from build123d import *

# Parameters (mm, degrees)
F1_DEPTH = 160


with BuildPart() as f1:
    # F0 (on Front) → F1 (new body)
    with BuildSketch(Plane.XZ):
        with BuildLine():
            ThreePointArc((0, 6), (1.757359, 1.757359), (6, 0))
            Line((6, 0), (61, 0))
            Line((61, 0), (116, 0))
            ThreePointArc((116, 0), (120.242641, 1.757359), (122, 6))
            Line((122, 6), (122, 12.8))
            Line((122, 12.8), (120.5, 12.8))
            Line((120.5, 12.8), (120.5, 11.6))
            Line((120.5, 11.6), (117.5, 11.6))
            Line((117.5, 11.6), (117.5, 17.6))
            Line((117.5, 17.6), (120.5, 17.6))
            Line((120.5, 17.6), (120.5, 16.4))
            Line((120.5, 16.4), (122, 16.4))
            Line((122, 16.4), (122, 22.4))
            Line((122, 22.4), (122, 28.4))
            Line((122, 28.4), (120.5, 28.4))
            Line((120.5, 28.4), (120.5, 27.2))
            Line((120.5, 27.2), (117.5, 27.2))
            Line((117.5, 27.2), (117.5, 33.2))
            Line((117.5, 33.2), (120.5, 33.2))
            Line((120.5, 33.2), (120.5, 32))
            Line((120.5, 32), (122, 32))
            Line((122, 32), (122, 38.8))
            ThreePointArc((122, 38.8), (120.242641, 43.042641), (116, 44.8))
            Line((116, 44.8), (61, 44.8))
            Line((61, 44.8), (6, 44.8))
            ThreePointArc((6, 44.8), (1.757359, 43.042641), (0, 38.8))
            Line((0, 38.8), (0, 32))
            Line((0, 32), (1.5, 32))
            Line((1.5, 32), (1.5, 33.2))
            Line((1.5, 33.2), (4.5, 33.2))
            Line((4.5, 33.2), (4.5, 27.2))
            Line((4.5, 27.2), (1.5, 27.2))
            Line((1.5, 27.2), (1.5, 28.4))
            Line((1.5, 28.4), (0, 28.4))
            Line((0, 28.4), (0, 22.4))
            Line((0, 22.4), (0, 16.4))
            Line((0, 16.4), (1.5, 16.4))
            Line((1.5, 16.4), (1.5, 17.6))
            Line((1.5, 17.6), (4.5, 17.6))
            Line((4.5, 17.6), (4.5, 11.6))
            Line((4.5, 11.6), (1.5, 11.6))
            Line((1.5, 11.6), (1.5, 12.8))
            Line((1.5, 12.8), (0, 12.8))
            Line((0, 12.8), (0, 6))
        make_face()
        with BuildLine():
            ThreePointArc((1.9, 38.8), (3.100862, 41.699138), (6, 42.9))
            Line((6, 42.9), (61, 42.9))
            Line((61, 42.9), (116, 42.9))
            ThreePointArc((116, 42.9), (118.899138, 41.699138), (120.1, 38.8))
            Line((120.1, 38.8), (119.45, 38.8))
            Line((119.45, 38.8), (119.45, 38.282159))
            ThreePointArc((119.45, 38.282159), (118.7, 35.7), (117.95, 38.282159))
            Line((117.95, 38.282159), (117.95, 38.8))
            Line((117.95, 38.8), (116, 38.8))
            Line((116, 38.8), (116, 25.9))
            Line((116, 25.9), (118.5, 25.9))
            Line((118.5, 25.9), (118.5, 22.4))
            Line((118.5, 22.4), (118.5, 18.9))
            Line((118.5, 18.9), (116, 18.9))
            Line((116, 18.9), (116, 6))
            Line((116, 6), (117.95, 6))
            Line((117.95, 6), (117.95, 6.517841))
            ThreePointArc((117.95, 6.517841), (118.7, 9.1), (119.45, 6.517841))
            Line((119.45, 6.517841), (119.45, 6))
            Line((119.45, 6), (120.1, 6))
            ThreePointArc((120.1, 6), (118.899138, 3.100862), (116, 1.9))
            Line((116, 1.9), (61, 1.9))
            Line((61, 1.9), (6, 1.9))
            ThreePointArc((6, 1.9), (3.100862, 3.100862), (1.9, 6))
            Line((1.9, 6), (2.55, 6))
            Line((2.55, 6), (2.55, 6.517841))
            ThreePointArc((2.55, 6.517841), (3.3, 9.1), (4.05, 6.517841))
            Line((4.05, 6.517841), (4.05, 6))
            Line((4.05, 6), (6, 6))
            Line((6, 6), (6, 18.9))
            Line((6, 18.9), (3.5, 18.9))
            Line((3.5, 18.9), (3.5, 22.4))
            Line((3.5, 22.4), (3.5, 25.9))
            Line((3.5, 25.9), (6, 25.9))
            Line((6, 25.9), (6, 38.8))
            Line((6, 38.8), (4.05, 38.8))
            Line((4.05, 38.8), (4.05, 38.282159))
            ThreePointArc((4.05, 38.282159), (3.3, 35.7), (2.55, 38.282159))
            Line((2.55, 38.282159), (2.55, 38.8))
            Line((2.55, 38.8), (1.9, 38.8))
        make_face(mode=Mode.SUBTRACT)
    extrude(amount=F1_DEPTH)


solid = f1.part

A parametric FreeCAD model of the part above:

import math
import FreeCAD as App
import Part
import Sketcher

V = App.Vector

doc = App.newDocument("Part")
body = doc.addObject("PartDesign::Body", "Body")

sketch1 = doc.addObject("Sketcher::SketchObject", "Sketch")
body.addObject(sketch1)
sketch1.AttachmentSupport = (doc.XZ_Plane, [""])
sketch1.MapMode = "FlatFace"
sketch1.addGeometry(Part.ArcOfCircle(Part.Circle(V(6, 6, 0), V(0, 0, 1), 6), math.radians(180), math.radians(270)), False)
sketch1.addGeometry(Part.LineSegment(V(6, 0, 0), V(116, 0, 0)), False)
sketch1.addGeometry(Part.ArcOfCircle(Part.Circle(V(116, 6, 0), V(0, 0, 1), 6), math.radians(-90), math.radians(0)), False)
sketch1.addGeometry(Part.LineSegment(V(122, 6, 0), V(122, 12.8, 0)), False)
sketch1.addGeometry(Part.LineSegment(V(122, 12.8, 0), V(120.5, 12.8, 0)), False)
sketch1.addGeometry(Part.LineSegment(V(120.5, 12.8, 0), V(120.5, 11.6, 0)), False)
sketch1.addGeometry(Part.LineSegment(V(120.5, 11.6, 0), V(117.5, 11.6, 0)), False)
sketch1.addGeometry(Part.LineSegment(V(117.5, 11.6, 0), V(117.5, 17.6, 0)), False)
sketch1.addGeometry(Part.LineSegment(V(117.5, 17.6, 0), V(120.5, 17.6, 0)), False)
sketch1.addGeometry(Part.LineSegment(V(120.5, 17.6, 0), V(120.5, 16.4, 0)), False)
sketch1.addGeometry(Part.LineSegment(V(120.5, 16.4, 0), V(122, 16.4, 0)), False)
sketch1.addGeometry(Part.LineSegment(V(122, 16.4, 0), V(122, 28.4, 0)), False)
sketch1.addGeometry(Part.LineSegment(V(122, 28.4, 0), V(120.5, 28.4, 0)), False)
sketch1.addGeometry(Part.LineSegment(V(120.5, 28.4, 0), V(120.5, 27.2, 0)), False)
sketch1.addGeometry(Part.LineSegment(V(120.5, 27.2, 0), V(117.5, 27.2, 0)), False)
sketch1.addGeometry(Part.LineSegment(V(117.5, 27.2, 0), V(117.5, 33.2, 0)), False)
sketch1.addGeometry(Part.LineSegment(V(117.5, 33.2, 0), V(120.5, 33.2, 0)), False)
sketch1.addGeometry(Part.LineSegment(V(120.5, 33.2, 0), V(120.5, 32, 0)), False)
sketch1.addGeometry(Part.LineSegment(V(120.5, 32, 0), V(122, 32, 0)), False)
sketch1.addGeometry(Part.LineSegment(V(122, 32, 0), V(122, 38.8, 0)), False)
sketch1.addGeometry(Part.ArcOfCircle(Part.Circle(V(116, 38.8, 0), V(0, 0, 1), 6), math.radians(0), math.radians(90)), False)
sketch1.addGeometry(Part.LineSegment(V(116, 44.8, 0), V(6, 44.8, 0)), False)
sketch1.addGeometry(Part.ArcOfCircle(Part.Circle(V(6, 38.8, 0), V(0, 0, 1), 6), math.radians(90), math.radians(180)), False)
sketch1.addGeometry(Part.LineSegment(V(0, 38.8, 0), V(0, 32, 0)), False)
sketch1.addGeometry(Part.LineSegment(V(0, 32, 0), V(1.5, 32, 0)), False)
sketch1.addGeometry(Part.LineSegment(V(1.5, 32, 0), V(1.5, 33.2, 0)), False)
sketch1.addGeometry(Part.LineSegment(V(1.5, 33.2, 0), V(4.5, 33.2, 0)), False)
sketch1.addGeometry(Part.LineSegment(V(4.5, 33.2, 0), V(4.5, 27.2, 0)), False)
sketch1.addGeometry(Part.LineSegment(V(4.5, 27.2, 0), V(1.5, 27.2, 0)), False)
sketch1.addGeometry(Part.LineSegment(V(1.5, 27.2, 0), V(1.5, 28.4, 0)), False)
sketch1.addGeometry(Part.LineSegment(V(1.5, 28.4, 0), V(0, 28.4, 0)), False)
sketch1.addGeometry(Part.LineSegment(V(0, 28.4, 0), V(0, 16.4, 0)), False)
sketch1.addGeometry(Part.LineSegment(V(0, 16.4, 0), V(1.5, 16.4, 0)), False)
sketch1.addGeometry(Part.LineSegment(V(1.5, 16.4, 0), V(1.5, 17.6, 0)), False)
sketch1.addGeometry(Part.LineSegment(V(1.5, 17.6, 0), V(4.5, 17.6, 0)), False)
sketch1.addGeometry(Part.LineSegment(V(4.5, 17.6, 0), V(4.5, 11.6, 0)), False)
sketch1.addGeometry(Part.LineSegment(V(4.5, 11.6, 0), V(1.5, 11.6, 0)), False)
sketch1.addGeometry(Part.LineSegment(V(1.5, 11.6, 0), V(1.5, 12.8, 0)), False)
sketch1.addGeometry(Part.LineSegment(V(1.5, 12.8, 0), V(0, 12.8, 0)), False)
sketch1.addGeometry(Part.LineSegment(V(0, 12.8, 0), V(0, 6, 0)), False)
sketch1.addGeometry(Part.LineSegment(V(2.5, 38.8, 0), V(1.9, 38.8, 0)), False)
sketch1.addGeometry(Part.ArcOfCircle(Part.Circle(V(6, 38.8, 0), V(0, 0, 1), 4.1), math.radians(90), math.radians(180)), False)
sketch1.addGeometry(Part.LineSegment(V(6, 42.9, 0), V(116, 42.9, 0)), False)
sketch1.addGeometry(Part.ArcOfCircle(Part.Circle(V(116, 38.8, 0), V(0, 0, 1), 4.1), math.radians(0), math.radians(90)), False)
sketch1.addGeometry(Part.LineSegment(V(120.1, 38.8, 0), V(119.5, 38.8, 0)), False)
sketch1.addGeometry(Part.LineSegment(V(119.5, 38.8, 0), V(119.5, 38.3, 0)), False)
sketch1.addGeometry(Part.ArcOfCircle(Part.Circle(V(118.7, 37.1, 0), V(0, 0, 1), 1.4), math.radians(122), math.radians(418)), False)
sketch1.addGeometry(Part.LineSegment(V(118, 38.3, 0), V(118, 38.8, 0)), False)
sketch1.addGeometry(Part.LineSegment(V(118, 38.8, 0), V(116, 38.8, 0)), False)
sketch1.addGeometry(Part.LineSegment(V(116, 38.8, 0), V(116, 25.9, 0)), False)
sketch1.addGeometry(Part.LineSegment(V(116, 25.9, 0), V(118.5, 25.9, 0)), False)
sketch1.addGeometry(Part.LineSegment(V(118.5, 25.9, 0), V(118.5, 18.9, 0)), False)
sketch1.addGeometry(Part.LineSegment(V(118.5, 18.9, 0), V(116, 18.9, 0)), False)
sketch1.addGeometry(Part.LineSegment(V(116, 18.9, 0), V(116, 6, 0)), False)
sketch1.addGeometry(Part.LineSegment(V(116, 6, 0), V(118, 6, 0)), False)
sketch1.addGeometry(Part.LineSegment(V(118, 6, 0), V(118, 6.5, 0)), False)
sketch1.addGeometry(Part.ArcOfCircle(Part.Circle(V(118.7, 7.7, 0), V(0, 0, 1), 1.4), math.radians(-58), math.radians(238)), False)
sketch1.addGeometry(Part.LineSegment(V(119.5, 6.5, 0), V(119.5, 6, 0)), False)
sketch1.addGeometry(Part.LineSegment(V(119.5, 6, 0), V(120.1, 6, 0)), False)
sketch1.addGeometry(Part.ArcOfCircle(Part.Circle(V(116, 6, 0), V(0, 0, 1), 4.1), math.radians(-90), math.radians(0)), False)
sketch1.addGeometry(Part.LineSegment(V(116, 1.9, 0), V(6, 1.9, 0)), False)
sketch1.addGeometry(Part.ArcOfCircle(Part.Circle(V(6, 6, 0), V(0, 0, 1), 4.1), math.radians(180), math.radians(270)), False)
sketch1.addGeometry(Part.LineSegment(V(1.9, 6, 0), V(2.5, 6, 0)), False)
sketch1.addGeometry(Part.LineSegment(V(2.5, 6, 0), V(2.5, 6.5, 0)), False)
sketch1.addGeometry(Part.ArcOfCircle(Part.Circle(V(3.3, 7.7, 0), V(0, 0, 1), 1.4), math.radians(-58), math.radians(238)), False)
sketch1.addGeometry(Part.LineSegment(V(4, 6.5, 0), V(4, 6, 0)), False)
sketch1.addGeometry(Part.LineSegment(V(4, 6, 0), V(6, 6, 0)), False)
sketch1.addGeometry(Part.LineSegment(V(6, 6, 0), V(6, 18.9, 0)), False)
sketch1.addGeometry(Part.LineSegment(V(6, 18.9, 0), V(3.5, 18.9, 0)), False)
sketch1.addGeometry(Part.LineSegment(V(3.5, 18.9, 0), V(3.5, 25.9, 0)), False)
sketch1.addGeometry(Part.LineSegment(V(3.5, 25.9, 0), V(6, 25.9, 0)), False)
sketch1.addGeometry(Part.LineSegment(V(6, 25.9, 0), V(6, 38.8, 0)), False)
sketch1.addGeometry(Part.LineSegment(V(6, 38.8, 0), V(4, 38.8, 0)), False)
sketch1.addGeometry(Part.LineSegment(V(4, 38.8, 0), V(4, 38.3, 0)), False)
sketch1.addGeometry(Part.ArcOfCircle(Part.Circle(V(3.3, 37.1, 0), V(0, 0, 1), 1.4), math.radians(122), math.radians(418)), False)
sketch1.addGeometry(Part.LineSegment(V(2.5, 38.3, 0), V(2.5, 38.8, 0)), False)
sketch1.addConstraint(Sketcher.Constraint("Tangent", 0, 2, 1, 1))
sketch1.addConstraint(Sketcher.Constraint("Tangent", 1, 2, 2, 1))
sketch1.addConstraint(Sketcher.Constraint("Tangent", 2, 2, 3, 1))
sketch1.addConstraint(Sketcher.Constraint("Coincident", 3, 2, 4, 1))
sketch1.addConstraint(Sketcher.Constraint("Coincident", 4, 2, 5, 1))
sketch1.addConstraint(Sketcher.Constraint("Coincident", 5, 2, 6, 1))
sketch1.addConstraint(Sketcher.Constraint("Coincident", 6, 2, 7, 1))
sketch1.addConstraint(Sketcher.Constraint("Coincident", 7, 2, 8, 1))
sketch1.addConstraint(Sketcher.Constraint("Coincident", 8, 2, 9, 1))
sketch1.addConstraint(Sketcher.Constraint("Coincident", 9, 2, 10, 1))
sketch1.addConstraint(Sketcher.Constraint("Coincident", 10, 2, 11, 1))
sketch1.addConstraint(Sketcher.Constraint("Coincident", 11, 2, 12, 1))
sketch1.addConstraint(Sketcher.Constraint("Coincident", 12, 2, 13, 1))
sketch1.addConstraint(Sketcher.Constraint("Coincident", 13, 2, 14, 1))
sketch1.addConstraint(Sketcher.Constraint("Coincident", 14, 2, 15, 1))
sketch1.addConstraint(Sketcher.Constraint("Coincident", 15, 2, 16, 1))
sketch1.addConstraint(Sketcher.Constraint("Coincident", 16, 2, 17, 1))
sketch1.addConstraint(Sketcher.Constraint("Coincident", 17, 2, 18, 1))
sketch1.addConstraint(Sketcher.Constraint("Coincident", 18, 2, 19, 1))
sketch1.addConstraint(Sketcher.Constraint("Tangent", 19, 2, 20, 1))
sketch1.addConstraint(Sketcher.Constraint("Tangent", 20, 2, 21, 1))
sketch1.addConstraint(Sketcher.Constraint("Tangent", 21, 2, 22, 1))
sketch1.addConstraint(Sketcher.Constraint("Tangent", 22, 2, 23, 1))
sketch1.addConstraint(Sketcher.Constraint("Coincident", 23, 2, 24, 1))
sketch1.addConstraint(Sketcher.Constraint("Coincident", 24, 2, 25, 1))
sketch1.addConstraint(Sketcher.Constraint("Coincident", 25, 2, 26, 1))
sketch1.addConstraint(Sketcher.Constraint("Coincident", 26, 2, 27, 1))
sketch1.addConstraint(Sketcher.Constraint("Coincident", 27, 2, 28, 1))
sketch1.addConstraint(Sketcher.Constraint("Coincident", 28, 2, 29, 1))
sketch1.addConstraint(Sketcher.Constraint("Coincident", 29, 2, 30, 1))
sketch1.addConstraint(Sketcher.Constraint("Coincident", 30, 2, 31, 1))
sketch1.addConstraint(Sketcher.Constraint("Coincident", 31, 2, 32, 1))
sketch1.addConstraint(Sketcher.Constraint("Coincident", 32, 2, 33, 1))
sketch1.addConstraint(Sketcher.Constraint("Coincident", 33, 2, 34, 1))
sketch1.addConstraint(Sketcher.Constraint("Coincident", 34, 2, 35, 1))
sketch1.addConstraint(Sketcher.Constraint("Coincident", 35, 2, 36, 1))
sketch1.addConstraint(Sketcher.Constraint("Coincident", 36, 2, 37, 1))
sketch1.addConstraint(Sketcher.Constraint("Coincident", 37, 2, 38, 1))
sketch1.addConstraint(Sketcher.Constraint("Coincident", 38, 2, 39, 1))
sketch1.addConstraint(Sketcher.Constraint("Tangent", 39, 2, 0, 1))
sketch1.addConstraint(Sketcher.Constraint("Coincident", 40, 2, 41, 2))
sketch1.addConstraint(Sketcher.Constraint("Tangent", 41, 1, 42, 1))
sketch1.addConstraint(Sketcher.Constraint("Tangent", 42, 2, 43, 2))
sketch1.addConstraint(Sketcher.Constraint("Coincident", 43, 1, 44, 1))
sketch1.addConstraint(Sketcher.Constraint("Coincident", 44, 2, 45, 1))
sketch1.addConstraint(Sketcher.Constraint("Coincident", 45, 2, 46, 2))
sketch1.addConstraint(Sketcher.Constraint("Coincident", 46, 1, 47, 1))
sketch1.addConstraint(Sketcher.Constraint("Coincident", 47, 2, 48, 1))
sketch1.addConstraint(Sketcher.Constraint("Coincident", 48, 2, 49, 1))
sketch1.addConstraint(Sketcher.Constraint("Coincident", 49, 2, 50, 1))
sketch1.addConstraint(Sketcher.Constraint("Coincident", 50, 2, 51, 1))
sketch1.addConstraint(Sketcher.Constraint("Coincident", 51, 2, 52, 1))
sketch1.addConstraint(Sketcher.Constraint("Coincident", 52, 2, 53, 1))
sketch1.addConstraint(Sketcher.Constraint("Coincident", 53, 2, 54, 1))
sketch1.addConstraint(Sketcher.Constraint("Coincident", 54, 2, 55, 1))
sketch1.addConstraint(Sketcher.Constraint("Coincident", 55, 2, 56, 2))
sketch1.addConstraint(Sketcher.Constraint("Coincident", 56, 1, 57, 1))
sketch1.addConstraint(Sketcher.Constraint("Coincident", 57, 2, 58, 1))
sketch1.addConstraint(Sketcher.Constraint("Coincident", 58, 2, 59, 2))
sketch1.addConstraint(Sketcher.Constraint("Tangent", 59, 1, 60, 1))
sketch1.addConstraint(Sketcher.Constraint("Tangent", 60, 2, 61, 2))
sketch1.addConstraint(Sketcher.Constraint("Coincident", 61, 1, 62, 1))
sketch1.addConstraint(Sketcher.Constraint("Coincident", 62, 2, 63, 1))
sketch1.addConstraint(Sketcher.Constraint("Coincident", 63, 2, 64, 2))
sketch1.addConstraint(Sketcher.Constraint("Coincident", 64, 1, 65, 1))
sketch1.addConstraint(Sketcher.Constraint("Coincident", 65, 2, 66, 1))
sketch1.addConstraint(Sketcher.Constraint("Coincident", 66, 2, 67, 1))
sketch1.addConstraint(Sketcher.Constraint("Coincident", 67, 2, 68, 1))
sketch1.addConstraint(Sketcher.Constraint("Coincident", 68, 2, 69, 1))
sketch1.addConstraint(Sketcher.Constraint("Coincident", 69, 2, 70, 1))
sketch1.addConstraint(Sketcher.Constraint("Coincident", 70, 2, 71, 1))
sketch1.addConstraint(Sketcher.Constraint("Coincident", 71, 2, 72, 1))
sketch1.addConstraint(Sketcher.Constraint("Coincident", 72, 2, 73, 1))
sketch1.addConstraint(Sketcher.Constraint("Coincident", 73, 2, 74, 2))
sketch1.addConstraint(Sketcher.Constraint("Coincident", 74, 1, 75, 1))
sketch1.addConstraint(Sketcher.Constraint("Coincident", 75, 2, 40, 1))
sketch1.addConstraint(Sketcher.Constraint("Horizontal", 1))
sketch1.addConstraint(Sketcher.Constraint("Vertical", 3))
sketch1.addConstraint(Sketcher.Constraint("Horizontal", 4))
sketch1.addConstraint(Sketcher.Constraint("Vertical", 5))
sketch1.addConstraint(Sketcher.Constraint("Horizontal", 6))
sketch1.addConstraint(Sketcher.Constraint("Vertical", 7))
sketch1.addConstraint(Sketcher.Constraint("Horizontal", 8))
sketch1.addConstraint(Sketcher.Constraint("Vertical", 9))
sketch1.addConstraint(Sketcher.Constraint("Horizontal", 10))
sketch1.addConstraint(Sketcher.Constraint("Vertical", 11))
sketch1.addConstraint(Sketcher.Constraint("Horizontal", 12))
sketch1.addConstraint(Sketcher.Constraint("Vertical", 13))
sketch1.addConstraint(Sketcher.Constraint("Horizontal", 14))
sketch1.addConstraint(Sketcher.Constraint("Vertical", 15))
sketch1.addConstraint(Sketcher.Constraint("Horizontal", 16))
sketch1.addConstraint(Sketcher.Constraint("Vertical", 17))
sketch1.addConstraint(Sketcher.Constraint("Horizontal", 18))
sketch1.addConstraint(Sketcher.Constraint("Vertical", 19))
sketch1.addConstraint(Sketcher.Constraint("Horizontal", 21))
sketch1.addConstraint(Sketcher.Constraint("Vertical", 23))
sketch1.addConstraint(Sketcher.Constraint("Horizontal", 24))
sketch1.addConstraint(Sketcher.Constraint("Vertical", 25))
sketch1.addConstraint(Sketcher.Constraint("Horizontal", 26))
sketch1.addConstraint(Sketcher.Constraint("Vertical", 27))
sketch1.addConstraint(Sketcher.Constraint("Horizontal", 28))
sketch1.addConstraint(Sketcher.Constraint("Vertical", 29))
sketch1.addConstraint(Sketcher.Constraint("Horizontal", 30))
sketch1.addConstraint(Sketcher.Constraint("Vertical", 31))
sketch1.addConstraint(Sketcher.Constraint("Horizontal", 32))
sketch1.addConstraint(Sketcher.Constraint("Vertical", 33))
sketch1.addConstraint(Sketcher.Constraint("Horizontal", 34))
sketch1.addConstraint(Sketcher.Constraint("Vertical", 35))
sketch1.addConstraint(Sketcher.Constraint("Horizontal", 36))
sketch1.addConstraint(Sketcher.Constraint("Vertical", 37))
sketch1.addConstraint(Sketcher.Constraint("Horizontal", 38))
sketch1.addConstraint(Sketcher.Constraint("Vertical", 39))
sketch1.addConstraint(Sketcher.Constraint("Horizontal", 40))
sketch1.addConstraint(Sketcher.Constraint("Horizontal", 42))
sketch1.addConstraint(Sketcher.Constraint("Horizontal", 44))
sketch1.addConstraint(Sketcher.Constraint("Vertical", 45))
sketch1.addConstraint(Sketcher.Constraint("Vertical", 47))
sketch1.addConstraint(Sketcher.Constraint("Horizontal", 48))
sketch1.addConstraint(Sketcher.Constraint("Vertical", 49))
sketch1.addConstraint(Sketcher.Constraint("Horizontal", 50))
sketch1.addConstraint(Sketcher.Constraint("Vertical", 51))
sketch1.addConstraint(Sketcher.Constraint("Horizontal", 52))
sketch1.addConstraint(Sketcher.Constraint("Vertical", 53))
sketch1.addConstraint(Sketcher.Constraint("Horizontal", 54))
sketch1.addConstraint(Sketcher.Constraint("Vertical", 55))
sketch1.addConstraint(Sketcher.Constraint("Vertical", 57))
sketch1.addConstraint(Sketcher.Constraint("Horizontal", 58))
sketch1.addConstraint(Sketcher.Constraint("Horizontal", 60))
sketch1.addConstraint(Sketcher.Constraint("Horizontal", 62))
sketch1.addConstraint(Sketcher.Constraint("Vertical", 63))
sketch1.addConstraint(Sketcher.Constraint("Vertical", 65))
sketch1.addConstraint(Sketcher.Constraint("Horizontal", 66))
sketch1.addConstraint(Sketcher.Constraint("Vertical", 67))
sketch1.addConstraint(Sketcher.Constraint("Horizontal", 68))
sketch1.addConstraint(Sketcher.Constraint("Vertical", 69))
sketch1.addConstraint(Sketcher.Constraint("Horizontal", 70))
sketch1.addConstraint(Sketcher.Constraint("Vertical", 71))
sketch1.addConstraint(Sketcher.Constraint("Horizontal", 72))
sketch1.addConstraint(Sketcher.Constraint("Vertical", 73))
sketch1.addConstraint(Sketcher.Constraint("Vertical", 75))
sketch1.addConstraint(Sketcher.Constraint("Coincident", 41, 3, 22, 3))
sketch1.addConstraint(Sketcher.Constraint("Coincident", 43, 3, 20, 3))
sketch1.addConstraint(Sketcher.Constraint("Coincident", 59, 3, 2, 3))
sketch1.addConstraint(Sketcher.Constraint("Coincident", 61, 3, 0, 3))
sketch1.addConstraint(Sketcher.Constraint("Coincident", 48, 2, 20, 3))
sketch1.addConstraint(Sketcher.Constraint("Coincident", 53, 2, 2, 3))
sketch1.addConstraint(Sketcher.Constraint("Coincident", 66, 2, 0, 3))
sketch1.addConstraint(Sketcher.Constraint("Coincident", 71, 2, 22, 3))
sketch1.addConstraint(Sketcher.Constraint("Equal", 0, 2))
sketch1.addConstraint(Sketcher.Constraint("Equal", 2, 20))
sketch1.addConstraint(Sketcher.Constraint("Equal", 20, 22))
sketch1.addConstraint(Sketcher.Constraint("Equal", 46, 56))
sketch1.addConstraint(Sketcher.Constraint("Equal", 43, 59))
sketch1.addConstraint(Sketcher.Constraint("Equal", 56, 64))
sketch1.addConstraint(Sketcher.Constraint("Equal", 64, 74))
sketch1.addConstraint(Sketcher.Constraint("PointOnObject", 0, 2, -1))
sketch1.addConstraint(Sketcher.Constraint("PointOnObject", 22, 2, -2))
sketch1.addConstraint(Sketcher.Constraint("PointOnObject", 30, 2, -2))
sketch1.addConstraint(Sketcher.Constraint("PointOnObject", 38, 2, -2))
sketch1.addConstraint(Sketcher.Constraint("Horizontal", 56, 3, 64, 3))
sketch1.addConstraint(Sketcher.Constraint("Horizontal", 46, 3, 74, 3))
sketch1.addConstraint(Sketcher.Constraint("Horizontal", 18, 2, 23, 2))
sketch1.addConstraint(Sketcher.Constraint("Horizontal", 16, 2, 25, 2))
sketch1.addConstraint(Sketcher.Constraint("Horizontal", 14, 2, 27, 2))
sketch1.addConstraint(Sketcher.Constraint("Horizontal", 12, 2, 29, 2))
sketch1.addConstraint(Sketcher.Constraint("Horizontal", 10, 2, 31, 2))
sketch1.addConstraint(Sketcher.Constraint("Horizontal", 8, 2, 33, 2))
sketch1.addConstraint(Sketcher.Constraint("Horizontal", 6, 2, 35, 2))
sketch1.addConstraint(Sketcher.Constraint("Horizontal", 4, 2, 37, 2))
sketch1.addConstraint(Sketcher.Constraint("Horizontal", 22, 2, 40, 2))
sketch1.addConstraint(Sketcher.Constraint("Horizontal", 40, 2, 43, 1))
sketch1.addConstraint(Sketcher.Constraint("Horizontal", 45, 2, 46, 1))
sketch1.addConstraint(Sketcher.Constraint("Horizontal", 55, 2, 56, 1))
sketch1.addConstraint(Sketcher.Constraint("Horizontal", 54, 2, 57, 2))
sketch1.addConstraint(Sketcher.Constraint("Horizontal", 58, 2, 61, 1))
sketch1.addConstraint(Sketcher.Constraint("Horizontal", 56, 1, 63, 2))
sketch1.addConstraint(Sketcher.Constraint("Horizontal", 63, 2, 64, 1))
sketch1.addConstraint(Sketcher.Constraint("Horizontal", 52, 2, 67, 2))
sketch1.addConstraint(Sketcher.Constraint("Horizontal", 50, 2, 69, 2))
sketch1.addConstraint(Sketcher.Constraint("Horizontal", 46, 1, 73, 2))
sketch1.addConstraint(Sketcher.Constraint("Horizontal", 73, 2, 74, 1))
sketch1.addConstraint(Sketcher.Constraint("Vertical", 2, 3, 20, 3))
sketch1.addConstraint(Sketcher.Constraint("Vertical", 46, 3, 56, 3))
sketch1.addConstraint(Sketcher.Constraint("Vertical", 64, 3, 74, 3))
sketch1.addConstraint(Sketcher.Constraint("Vertical", 5, 2, 8, 2))
sketch1.addConstraint(Sketcher.Constraint("Vertical", 3, 2, 10, 2))
sketch1.addConstraint(Sketcher.Constraint("Vertical", 9, 2, 12, 2))
sketch1.addConstraint(Sketcher.Constraint("Vertical", 7, 2, 14, 2))
sketch1.addConstraint(Sketcher.Constraint("Vertical", 13, 2, 16, 2))
sketch1.addConstraint(Sketcher.Constraint("Vertical", 25, 2, 28, 2))
sketch1.addConstraint(Sketcher.Constraint("Vertical", 29, 2, 32, 2))
sketch1.addConstraint(Sketcher.Constraint("Vertical", 27, 2, 34, 2))
sketch1.addConstraint(Sketcher.Constraint("Vertical", 33, 2, 36, 2))
sketch1.addConstraint(Sketcher.Constraint("Vertical", 47, 2, 54, 2))
sketch1.addConstraint(Sketcher.Constraint("Equal", 18, 24))
sketch1.addConstraint(Sketcher.Constraint("Equal", 16, 26))
sketch1.addConstraint(Sketcher.Constraint("Equal", 40, 44))
sketch1.addConstraint(Sketcher.Constraint("Equal", 52, 68))
sketch1.addConstraint(Sketcher.Constraint("Equal", 5, 9))
sketch1.addConstraint(Sketcher.Constraint("Equal", 9, 13))
sketch1.addConstraint(Sketcher.Constraint("Equal", 7, 15))
sketch1.addConstraint(Sketcher.Constraint("Equal", 13, 17))
sketch1.addConstraint(Sketcher.Constraint("Equal", 3, 19))
sketch1.addConstraint(Sketcher.Constraint("Equal", 49, 53))
sketch1.addConstraint(Sketcher.Constraint("Equal", 47, 55))
sketch1.addConstraint(Sketcher.Constraint("Radius", 0, 5.999999))
sketch1.addConstraint(Sketcher.Constraint("Radius", 41, 4.099999))
sketch1.addConstraint(Sketcher.Constraint("Radius", 46, 1.4))
sketch1.addConstraint(Sketcher.Constraint("DistanceX", 1, 1, 1, 2, 110.0))
sketch1.addConstraint(Sketcher.Constraint("DistanceX", 6, 2, 6, 1, 3.0))
sketch1.addConstraint(Sketcher.Constraint("DistanceY", 7, 1, 7, 2, 6.0))
sketch1.addConstraint(Sketcher.Constraint("DistanceY", 11, 1, 11, 2, 12.0))
sketch1.addConstraint(Sketcher.Constraint("DistanceY", 51, 2, 51, 1, 7.0))
sketch1.addConstraint(Sketcher.Constraint("DistanceX", 4, 2, 4, 1, 1.5))
sketch1.addConstraint(Sketcher.Constraint("DistanceX", 50, 1, 50, 2, 2.5))
sketch1.addConstraint(Sketcher.Constraint("DistanceY", 3, 1, 3, 2, 6.8))
sketch1.addConstraint(Sketcher.Constraint("DistanceY", 5, 2, 5, 1, 1.2))
sketch1.addConstraint(Sketcher.Constraint("DistanceX", 40, 2, 40, 1, 0.65))
sketch1.addConstraint(Sketcher.Constraint("DistanceX", 48, 2, 48, 1, 1.95))
sketch1.addConstraint(Sketcher.Constraint("DistanceY", -1, 1, 46, 3, 37.1))
pad1 = doc.addObject("PartDesign::Pad", "Pad")
body.addObject(pad1)
pad1.Profile = sketch1
pad1.Length = 160

doc.recompute()
